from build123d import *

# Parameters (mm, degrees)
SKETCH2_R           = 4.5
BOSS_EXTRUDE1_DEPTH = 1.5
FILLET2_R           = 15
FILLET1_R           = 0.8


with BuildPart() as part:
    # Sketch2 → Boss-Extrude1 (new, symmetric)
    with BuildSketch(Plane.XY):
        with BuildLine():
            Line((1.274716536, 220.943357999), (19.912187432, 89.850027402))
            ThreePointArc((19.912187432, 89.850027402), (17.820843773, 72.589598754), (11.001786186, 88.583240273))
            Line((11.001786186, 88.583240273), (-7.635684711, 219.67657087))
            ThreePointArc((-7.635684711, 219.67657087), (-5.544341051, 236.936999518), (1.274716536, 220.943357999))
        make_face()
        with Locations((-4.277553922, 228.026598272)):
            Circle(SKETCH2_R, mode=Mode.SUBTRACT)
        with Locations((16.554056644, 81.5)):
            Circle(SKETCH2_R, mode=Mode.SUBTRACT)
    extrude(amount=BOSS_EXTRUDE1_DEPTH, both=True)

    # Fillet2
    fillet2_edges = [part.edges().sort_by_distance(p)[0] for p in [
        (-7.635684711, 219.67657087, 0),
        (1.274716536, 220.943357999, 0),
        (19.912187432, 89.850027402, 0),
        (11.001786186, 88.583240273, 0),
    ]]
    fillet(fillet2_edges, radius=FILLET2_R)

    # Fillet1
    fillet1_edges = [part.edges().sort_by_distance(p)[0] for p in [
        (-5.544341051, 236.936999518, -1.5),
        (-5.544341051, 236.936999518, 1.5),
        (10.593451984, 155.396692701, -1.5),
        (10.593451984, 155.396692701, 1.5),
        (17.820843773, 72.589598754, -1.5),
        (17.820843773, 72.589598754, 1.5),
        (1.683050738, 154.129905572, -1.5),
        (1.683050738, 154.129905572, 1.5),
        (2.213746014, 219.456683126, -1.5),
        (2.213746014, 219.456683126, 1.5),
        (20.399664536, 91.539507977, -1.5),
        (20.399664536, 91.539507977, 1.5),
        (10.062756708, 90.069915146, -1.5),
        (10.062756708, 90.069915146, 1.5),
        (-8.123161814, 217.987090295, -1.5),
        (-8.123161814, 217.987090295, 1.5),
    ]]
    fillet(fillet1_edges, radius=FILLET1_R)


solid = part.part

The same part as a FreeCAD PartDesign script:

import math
import FreeCAD as App
import Part
import Sketcher

V = App.Vector
Q = App.Units.Quantity


def edges_at(feature, points):
    """Names of the edges that pass closest to the given points."""
    edges = feature.Shape.Edges
    near = lambda p: min(range(len(edges)), key=lambda i: edges[i].distToShape(Part.Vertex(*p))[0])
    return sorted({f"Edge{near(p) + 1}" for p in points})

doc = App.newDocument("Part")
body = doc.addObject("PartDesign::Body", "Body")

sketch1 = body.newObject("Sketcher::SketchObject", "Sketch")
sketch1.AttachmentSupport = (doc.getObject("XY_Plane"), [""])
sketch1.MapMode = "FlatFace"
sketch1.addGeometry([
    Part.LineSegment(V(19.912187, 89.850027, 0), V(1.274717, 220.943358, 0)),
    Part.ArcOfCircle(Part.Circle(V(-4.277554, 228.026598, 0), V(0, 0, 1), 9), math.radians(-51.908513), math.radians(248.091487)),
    Part.LineSegment(V(-7.635685, 219.676571, 0), V(11.001786, 88.58324, 0)),
    Part.ArcOfCircle(Part.Circle(V(16.554057, 81.5, 0), V(0, 0, 1), 9), math.radians(128.091487), math.radians(428.091487)),
    Part.Circle(V(16.554057, 81.5, 0), V(0, 0, 1), 4.5),
    Part.Circle(V(-4.277554, 228.026598, 0), V(0, 0, 1), 4.5),
], False)
sketch1.addConstraint([
    Sketcher.Constraint("Coincident", 0, 2, 1, 1),
    Sketcher.Constraint("Coincident", 1, 2, 2, 1),
    Sketcher.Constraint("Coincident", 2, 2, 3, 1),
    Sketcher.Constraint("Coincident", 3, 2, 0, 1),
    Sketcher.Constraint("Coincident", 4, 3, 3, 3),
    Sketcher.Constraint("Coincident", 5, 3, 1, 3),
    Sketcher.Constraint("Equal", 1, 3),
    Sketcher.Constraint("Equal", 4, 5),
    Sketcher.Constraint("Parallel", 0, 2),
    Sketcher.Constraint("Equal", 0, 2),
    Sketcher.Constraint("Diameter", 4, Q("9 mm")),
    Sketcher.Constraint("Radius", 1, Q("9 mm")),
    Sketcher.Constraint("DistanceY", -1, 1, 3, 3, Q("81.5 mm")),
    Sketcher.Constraint("DistanceY", -1, 1, 1, 3, Q("228.026598 mm")),
    Sketcher.Constraint("DistanceX", 1, 2, 0, 2, Q("8.910401 mm")),
    Sketcher.Constraint("DistanceY", -1, 1, 1, 2, Q("219.676571 mm")),
    Sketcher.Constraint("DistanceX", 1, 3, 3, 3, Q("20.831611 mm")),
    Sketcher.Constraint("DistanceX", 1, 3, -1, 1, Q("4.277554 mm")),
])
pad1 = body.newObject("PartDesign::Pad", "Pad")
pad1.Profile = sketch1
pad1.Length = 3
pad1.Midplane = True
doc.recompute()

fillet = body.newObject("PartDesign::Fillet", "Fillet")
fillet.Base = (pad1, edges_at(pad1, [
    (-7.636, 219.677, 0),
    (1.275, 220.943, 0),
    (19.912, 89.85, 0),
    (11.002, 88.583, 0),
]))
fillet.Radius = 15
doc.recompute()

fillet2 = body.newObject("PartDesign::Fillet", "Fillet001")
fillet2.Base = (fillet, edges_at(fillet, [
    (-5.544, 236.937, -1.5),
    (-5.544, 236.937, 1.5),
    (10.593, 155.397, -1.5),
    (10.593, 155.397, 1.5),
    (17.821, 72.59, -1.5),
    (17.821, 72.59, 1.5),
    (1.683, 154.13, -1.5),
    (1.683, 154.13, 1.5),
    (2.214, 219.457, -1.5),
    (2.214, 219.457, 1.5),
    (20.4, 91.54, -1.5),
    (20.4, 91.54, 1.5),
    (10.063, 90.07, -1.5),
    (10.063, 90.07, 1.5),
    (-8.123, 217.987, -1.5),
    (-8.123, 217.987, 1.5),
]))
fillet2.Radius = 0.8

doc.recompute()
